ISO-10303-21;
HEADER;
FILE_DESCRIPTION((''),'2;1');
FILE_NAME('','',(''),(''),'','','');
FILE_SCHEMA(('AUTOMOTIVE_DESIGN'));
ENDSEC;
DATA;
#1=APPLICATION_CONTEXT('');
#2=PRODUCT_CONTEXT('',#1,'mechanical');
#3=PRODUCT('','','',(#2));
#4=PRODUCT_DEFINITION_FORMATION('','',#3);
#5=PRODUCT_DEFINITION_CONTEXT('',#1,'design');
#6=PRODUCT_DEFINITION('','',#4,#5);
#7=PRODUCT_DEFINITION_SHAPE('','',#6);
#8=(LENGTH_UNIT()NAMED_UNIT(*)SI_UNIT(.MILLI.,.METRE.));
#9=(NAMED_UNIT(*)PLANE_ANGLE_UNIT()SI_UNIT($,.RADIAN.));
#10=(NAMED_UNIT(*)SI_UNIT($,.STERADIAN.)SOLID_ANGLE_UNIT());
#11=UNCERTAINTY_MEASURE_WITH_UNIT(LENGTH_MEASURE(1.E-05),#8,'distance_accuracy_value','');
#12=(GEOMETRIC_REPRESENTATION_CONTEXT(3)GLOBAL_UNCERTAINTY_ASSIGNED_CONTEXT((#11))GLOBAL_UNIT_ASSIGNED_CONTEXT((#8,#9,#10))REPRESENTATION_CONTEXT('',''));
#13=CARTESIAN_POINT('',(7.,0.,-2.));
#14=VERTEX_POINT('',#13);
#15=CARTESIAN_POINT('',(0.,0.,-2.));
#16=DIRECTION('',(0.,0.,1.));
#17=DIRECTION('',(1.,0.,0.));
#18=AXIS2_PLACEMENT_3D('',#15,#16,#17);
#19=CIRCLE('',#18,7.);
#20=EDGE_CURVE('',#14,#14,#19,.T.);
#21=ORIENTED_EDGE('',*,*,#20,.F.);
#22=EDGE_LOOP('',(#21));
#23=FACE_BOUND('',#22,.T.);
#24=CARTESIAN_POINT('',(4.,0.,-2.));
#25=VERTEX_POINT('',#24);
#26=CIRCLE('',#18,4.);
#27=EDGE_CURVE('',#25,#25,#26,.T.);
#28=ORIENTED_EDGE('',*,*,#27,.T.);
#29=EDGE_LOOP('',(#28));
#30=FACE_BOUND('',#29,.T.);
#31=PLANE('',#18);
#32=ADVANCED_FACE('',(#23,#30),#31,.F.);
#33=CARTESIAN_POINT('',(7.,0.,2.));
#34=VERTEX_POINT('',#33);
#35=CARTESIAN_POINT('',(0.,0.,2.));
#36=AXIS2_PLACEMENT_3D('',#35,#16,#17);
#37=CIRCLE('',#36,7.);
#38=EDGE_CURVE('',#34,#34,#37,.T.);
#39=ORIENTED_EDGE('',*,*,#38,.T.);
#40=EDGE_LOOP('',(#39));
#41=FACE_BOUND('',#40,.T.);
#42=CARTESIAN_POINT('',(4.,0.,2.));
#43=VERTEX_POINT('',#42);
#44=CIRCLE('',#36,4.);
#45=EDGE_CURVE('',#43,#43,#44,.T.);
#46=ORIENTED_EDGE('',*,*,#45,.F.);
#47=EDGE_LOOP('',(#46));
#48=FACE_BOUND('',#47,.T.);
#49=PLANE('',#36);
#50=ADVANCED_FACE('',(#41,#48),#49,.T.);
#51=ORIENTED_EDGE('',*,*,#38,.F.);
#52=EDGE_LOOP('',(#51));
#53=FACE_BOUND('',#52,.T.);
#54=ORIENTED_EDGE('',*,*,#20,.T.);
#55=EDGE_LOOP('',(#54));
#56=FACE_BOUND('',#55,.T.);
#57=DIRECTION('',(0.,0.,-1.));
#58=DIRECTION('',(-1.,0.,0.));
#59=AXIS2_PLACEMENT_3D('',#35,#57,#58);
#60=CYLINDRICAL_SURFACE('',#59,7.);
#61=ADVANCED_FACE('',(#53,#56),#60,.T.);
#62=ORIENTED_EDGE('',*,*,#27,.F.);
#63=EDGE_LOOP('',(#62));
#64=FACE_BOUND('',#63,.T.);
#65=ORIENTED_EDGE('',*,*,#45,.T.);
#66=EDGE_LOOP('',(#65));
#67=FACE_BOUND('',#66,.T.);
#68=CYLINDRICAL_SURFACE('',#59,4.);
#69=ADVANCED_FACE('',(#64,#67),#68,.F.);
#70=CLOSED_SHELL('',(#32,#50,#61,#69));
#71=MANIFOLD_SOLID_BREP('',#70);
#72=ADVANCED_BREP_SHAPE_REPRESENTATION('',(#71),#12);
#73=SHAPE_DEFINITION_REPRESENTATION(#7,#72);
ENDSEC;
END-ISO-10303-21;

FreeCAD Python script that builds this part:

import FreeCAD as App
import Part
import Sketcher
from FreeCAD import Vector

doc = App.newDocument("Part")
body = doc.addObject("PartDesign::Body", "Body")

sketch1 = doc.addObject("Sketcher::SketchObject", "Sketch")
body.addObject(sketch1)
sketch1.AttachmentSupport = (doc.XY_Plane, [""])
sketch1.MapMode = "FlatFace"
sketch1.addGeometry(Part.Circle(Vector(0, 0, 0), Vector(0, 0, 1), 7), False)
sketch1.addGeometry(Part.Circle(Vector(0, 0, 0), Vector(0, 0, 1), 4), False)
sketch1.addConstraint(Sketcher.Constraint("Coincident", 0, 3, -1, 1))
sketch1.addConstraint(Sketcher.Constraint("Coincident", 1, 3, -1, 1))
sketch1.addConstraint(Sketcher.Constraint("Diameter", 0, 14.0))
sketch1.addConstraint(Sketcher.Constraint("Diameter", 1, 8.0))
pad1 = doc.addObject("PartDesign::Pad", "Pad")
body.addObject(pad1)
pad1.Profile = sketch1
pad1.Length = 4
pad1.Midplane = True

doc.recompute()
